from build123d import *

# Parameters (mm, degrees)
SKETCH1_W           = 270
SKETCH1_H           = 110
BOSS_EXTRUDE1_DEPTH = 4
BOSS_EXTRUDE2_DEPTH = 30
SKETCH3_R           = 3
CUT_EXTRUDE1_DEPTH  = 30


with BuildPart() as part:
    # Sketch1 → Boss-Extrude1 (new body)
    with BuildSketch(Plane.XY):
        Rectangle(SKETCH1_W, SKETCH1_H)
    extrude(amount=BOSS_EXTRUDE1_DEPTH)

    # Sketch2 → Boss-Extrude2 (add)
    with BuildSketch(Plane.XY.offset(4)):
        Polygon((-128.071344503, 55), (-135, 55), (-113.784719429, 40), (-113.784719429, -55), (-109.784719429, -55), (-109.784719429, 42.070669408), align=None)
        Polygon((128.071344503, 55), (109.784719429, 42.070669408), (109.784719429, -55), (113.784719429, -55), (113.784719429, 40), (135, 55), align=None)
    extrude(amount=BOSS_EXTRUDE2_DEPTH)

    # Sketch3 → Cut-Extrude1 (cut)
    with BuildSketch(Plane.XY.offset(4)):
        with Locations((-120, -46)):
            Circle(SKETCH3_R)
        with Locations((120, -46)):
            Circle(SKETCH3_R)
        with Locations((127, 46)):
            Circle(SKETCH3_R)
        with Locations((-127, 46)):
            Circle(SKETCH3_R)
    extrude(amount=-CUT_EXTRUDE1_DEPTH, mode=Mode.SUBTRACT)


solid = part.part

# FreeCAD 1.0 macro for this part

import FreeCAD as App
import Part
import Sketcher


def add_polygon(sketch, points):
    """Adds a closed chain of lines whose ends are joined by coincident constraints."""
    first, n = sketch.GeometryCount, len(points)
    for a, b in zip(points, points[1:] + points[:1]):
        sketch.addGeometry(Part.LineSegment(App.Vector(*a, 0), App.Vector(*b, 0)), False)
    for i in range(n):
        sketch.addConstraint(Sketcher.Constraint("Coincident", first + i, 2, first + (i + 1) % n, 1))

doc = App.newDocument("Part")
params = doc.addObject("Spreadsheet::Sheet", "Params")
for row, (alias, value) in enumerate([
    ("sketch1_width", "270 mm"),
    ("sketch1_height", "110 mm"),
    ("pad1_length", "4 mm"),
    ("sketch2_width", "4 mm"),
    ("sketch2_height", "95 mm"),
    ("pad2_length", "30 mm"),
    ("sketch3_diameter", "6 mm"),
    ("pocket1_length", "30 mm"),
], start=1):
    params.set(f"A{row}", alias)
    params.set(f"B{row}", "=" + value)
    params.setAlias(f"B{row}", alias)

body = doc.addObject("PartDesign::Body", "Body")

# Sketch on XY plane
sketch1 = body.newObject("Sketcher::SketchObject", "Sketch")
sketch1.AttachmentSupport = (doc.getObject("XY_Plane"), [""])
sketch1.MapMode = "FlatFace"
add_polygon(sketch1, [(-135, 55), (-135, -55), (135, -55), (135, 55)])  # lines 0-3
sketch1.addConstraint([
    Sketcher.Constraint("Vertical", 0),
    Sketcher.Constraint("Horizontal", 1),
    Sketcher.Constraint("Vertical", 2),
    Sketcher.Constraint("Horizontal", 3),
    Sketcher.Constraint("Symmetric", 0, 2, 2, 2, -1, 1),
    Sketcher.Constraint("DistanceX", 1, 1, 1, 2, 270.0),
    Sketcher.Constraint("DistanceY", 0, 2, 0, 1, 110.0),
])
sketch1.setExpression("Constraints[9]", "Params.sketch1_width")
sketch1.setExpression("Constraints[10]", "Params.sketch1_height")
pad1 = body.newObject("PartDesign::Pad", "Pad")
pad1.Profile = sketch1
pad1.setExpression("Length", "Params.pad1_length")

# Sketch on XY plane
sketch2 = body.newObject("Sketcher::SketchObject", "Sketch001")
sketch2.AttachmentSupport = (doc.getObject("XY_Plane"), [""])
sketch2.MapMode = "FlatFace"
sketch2.AttachmentOffset = App.Placement(App.Vector(0, 0, 4), App.Rotation())
add_polygon(sketch2, [(-128.071345, 55), (-135, 55), (-113.784719, 40), (-113.784719, -55), (-109.784719, -55), (-109.784719, 42.070669)])  # lines 0-5
add_polygon(sketch2, [(128.071345, 55), (109.784719, 42.070669), (109.784719, -55), (113.784719, -55), (113.784719, 40), (135, 55)])  # lines 6-11
sketch2.addConstraint([
    Sketcher.Constraint("Horizontal", 0),
    Sketcher.Constraint("Vertical", 2),
    Sketcher.Constraint("Horizontal", 3),
    Sketcher.Constraint("Vertical", 4),
    Sketcher.Constraint("Vertical", 7),
    Sketcher.Constraint("Horizontal", 8),
    Sketcher.Constraint("Vertical", 9),
    Sketcher.Constraint("Horizontal", 11),
    Sketcher.Constraint("Symmetric", 4, 2, 6, 2, -2),
    Sketcher.Constraint("Symmetric", 2, 2, 8, 2, -2),
    Sketcher.Constraint("Symmetric", 0, 2, 10, 2, -2),
    Sketcher.Constraint("Parallel", 1, 5),
    Sketcher.Constraint("Parallel", 6, 10),
    Sketcher.Constraint("Horizontal", 1, 2, 9, 2),
    Sketcher.Constraint("DistanceX", 3, 1, 3, 2, 4.0),
    Sketcher.Constraint("DistanceY", 2, 2, 2, 1, 95.0),
    Sketcher.Constraint("DistanceX", 0, 2, -1, 1, 135.0),
    Sketcher.Constraint("DistanceY", -1, 1, 0, 2, 55.0),
    Sketcher.Constraint("DistanceY", -1, 1, 1, 2, 40.0),
    Sketcher.Constraint("DistanceY", 4, 1, 4, 2, 97.070669),
    Sketcher.Constraint("Distance", 1, 25.982458),
])
sketch2.setExpression("Constraints[26]", "Params.sketch2_width")
sketch2.setExpression("Constraints[27]", "Params.sketch2_height")
pad2 = body.newObject("PartDesign::Pad", "Pad001")
pad2.Profile = sketch2
pad2.setExpression("Length", "Params.pad2_length")

# Sketch on XY plane
sketch3 = body.newObject("Sketcher::SketchObject", "Sketch002")
sketch3.AttachmentSupport = (doc.getObject("XY_Plane"), [""])
sketch3.MapMode = "FlatFace"
sketch3.AttachmentOffset = App.Placement(App.Vector(0, 0, 4), App.Rotation())
sketch3.addGeometry([
    Part.Circle(App.Vector(-120, -46, 0), App.Vector(0, 0, 1), 3),
    Part.Circle(App.Vector(120, -46, 0), App.Vector(0, 0, 1), 3),
    Part.Circle(App.Vector(127, 46, 0), App.Vector(0, 0, 1), 3),
    Part.Circle(App.Vector(-127, 46, 0), App.Vector(0, 0, 1), 3),
], False)
sketch3.addConstraint([
    Sketcher.Constraint("Equal", 0, 1),
    Sketcher.Constraint("Equal", 1, 2),
    Sketcher.Constraint("Equal", 2, 3),
    Sketcher.Constraint("Symmetric", 0, 3, 1, 3, -2),
    Sketcher.Constraint("Symmetric", 2, 3, 3, 3, -2),
    Sketcher.Constraint("Diameter", 0, 6.0),
    Sketcher.Constraint("DistanceX", 0, 3, -1, 1, 120.0),
    Sketcher.Constraint("DistanceY", 0, 3, -1, 1, 46.0),
    Sketcher.Constraint("DistanceX", -1, 1, 2, 3, 127.0),
    Sketcher.Constraint("DistanceY", -1, 1, 2, 3, 46.0),
])
sketch3.setExpression("Constraints[5]", "Params.sketch3_diameter")
pocket1 = body.newObject("PartDesign::Pocket", "Pocket")
pocket1.Profile = sketch3
pocket1.setExpression("Length", "Params.pocket1_length")

doc.recompute()
